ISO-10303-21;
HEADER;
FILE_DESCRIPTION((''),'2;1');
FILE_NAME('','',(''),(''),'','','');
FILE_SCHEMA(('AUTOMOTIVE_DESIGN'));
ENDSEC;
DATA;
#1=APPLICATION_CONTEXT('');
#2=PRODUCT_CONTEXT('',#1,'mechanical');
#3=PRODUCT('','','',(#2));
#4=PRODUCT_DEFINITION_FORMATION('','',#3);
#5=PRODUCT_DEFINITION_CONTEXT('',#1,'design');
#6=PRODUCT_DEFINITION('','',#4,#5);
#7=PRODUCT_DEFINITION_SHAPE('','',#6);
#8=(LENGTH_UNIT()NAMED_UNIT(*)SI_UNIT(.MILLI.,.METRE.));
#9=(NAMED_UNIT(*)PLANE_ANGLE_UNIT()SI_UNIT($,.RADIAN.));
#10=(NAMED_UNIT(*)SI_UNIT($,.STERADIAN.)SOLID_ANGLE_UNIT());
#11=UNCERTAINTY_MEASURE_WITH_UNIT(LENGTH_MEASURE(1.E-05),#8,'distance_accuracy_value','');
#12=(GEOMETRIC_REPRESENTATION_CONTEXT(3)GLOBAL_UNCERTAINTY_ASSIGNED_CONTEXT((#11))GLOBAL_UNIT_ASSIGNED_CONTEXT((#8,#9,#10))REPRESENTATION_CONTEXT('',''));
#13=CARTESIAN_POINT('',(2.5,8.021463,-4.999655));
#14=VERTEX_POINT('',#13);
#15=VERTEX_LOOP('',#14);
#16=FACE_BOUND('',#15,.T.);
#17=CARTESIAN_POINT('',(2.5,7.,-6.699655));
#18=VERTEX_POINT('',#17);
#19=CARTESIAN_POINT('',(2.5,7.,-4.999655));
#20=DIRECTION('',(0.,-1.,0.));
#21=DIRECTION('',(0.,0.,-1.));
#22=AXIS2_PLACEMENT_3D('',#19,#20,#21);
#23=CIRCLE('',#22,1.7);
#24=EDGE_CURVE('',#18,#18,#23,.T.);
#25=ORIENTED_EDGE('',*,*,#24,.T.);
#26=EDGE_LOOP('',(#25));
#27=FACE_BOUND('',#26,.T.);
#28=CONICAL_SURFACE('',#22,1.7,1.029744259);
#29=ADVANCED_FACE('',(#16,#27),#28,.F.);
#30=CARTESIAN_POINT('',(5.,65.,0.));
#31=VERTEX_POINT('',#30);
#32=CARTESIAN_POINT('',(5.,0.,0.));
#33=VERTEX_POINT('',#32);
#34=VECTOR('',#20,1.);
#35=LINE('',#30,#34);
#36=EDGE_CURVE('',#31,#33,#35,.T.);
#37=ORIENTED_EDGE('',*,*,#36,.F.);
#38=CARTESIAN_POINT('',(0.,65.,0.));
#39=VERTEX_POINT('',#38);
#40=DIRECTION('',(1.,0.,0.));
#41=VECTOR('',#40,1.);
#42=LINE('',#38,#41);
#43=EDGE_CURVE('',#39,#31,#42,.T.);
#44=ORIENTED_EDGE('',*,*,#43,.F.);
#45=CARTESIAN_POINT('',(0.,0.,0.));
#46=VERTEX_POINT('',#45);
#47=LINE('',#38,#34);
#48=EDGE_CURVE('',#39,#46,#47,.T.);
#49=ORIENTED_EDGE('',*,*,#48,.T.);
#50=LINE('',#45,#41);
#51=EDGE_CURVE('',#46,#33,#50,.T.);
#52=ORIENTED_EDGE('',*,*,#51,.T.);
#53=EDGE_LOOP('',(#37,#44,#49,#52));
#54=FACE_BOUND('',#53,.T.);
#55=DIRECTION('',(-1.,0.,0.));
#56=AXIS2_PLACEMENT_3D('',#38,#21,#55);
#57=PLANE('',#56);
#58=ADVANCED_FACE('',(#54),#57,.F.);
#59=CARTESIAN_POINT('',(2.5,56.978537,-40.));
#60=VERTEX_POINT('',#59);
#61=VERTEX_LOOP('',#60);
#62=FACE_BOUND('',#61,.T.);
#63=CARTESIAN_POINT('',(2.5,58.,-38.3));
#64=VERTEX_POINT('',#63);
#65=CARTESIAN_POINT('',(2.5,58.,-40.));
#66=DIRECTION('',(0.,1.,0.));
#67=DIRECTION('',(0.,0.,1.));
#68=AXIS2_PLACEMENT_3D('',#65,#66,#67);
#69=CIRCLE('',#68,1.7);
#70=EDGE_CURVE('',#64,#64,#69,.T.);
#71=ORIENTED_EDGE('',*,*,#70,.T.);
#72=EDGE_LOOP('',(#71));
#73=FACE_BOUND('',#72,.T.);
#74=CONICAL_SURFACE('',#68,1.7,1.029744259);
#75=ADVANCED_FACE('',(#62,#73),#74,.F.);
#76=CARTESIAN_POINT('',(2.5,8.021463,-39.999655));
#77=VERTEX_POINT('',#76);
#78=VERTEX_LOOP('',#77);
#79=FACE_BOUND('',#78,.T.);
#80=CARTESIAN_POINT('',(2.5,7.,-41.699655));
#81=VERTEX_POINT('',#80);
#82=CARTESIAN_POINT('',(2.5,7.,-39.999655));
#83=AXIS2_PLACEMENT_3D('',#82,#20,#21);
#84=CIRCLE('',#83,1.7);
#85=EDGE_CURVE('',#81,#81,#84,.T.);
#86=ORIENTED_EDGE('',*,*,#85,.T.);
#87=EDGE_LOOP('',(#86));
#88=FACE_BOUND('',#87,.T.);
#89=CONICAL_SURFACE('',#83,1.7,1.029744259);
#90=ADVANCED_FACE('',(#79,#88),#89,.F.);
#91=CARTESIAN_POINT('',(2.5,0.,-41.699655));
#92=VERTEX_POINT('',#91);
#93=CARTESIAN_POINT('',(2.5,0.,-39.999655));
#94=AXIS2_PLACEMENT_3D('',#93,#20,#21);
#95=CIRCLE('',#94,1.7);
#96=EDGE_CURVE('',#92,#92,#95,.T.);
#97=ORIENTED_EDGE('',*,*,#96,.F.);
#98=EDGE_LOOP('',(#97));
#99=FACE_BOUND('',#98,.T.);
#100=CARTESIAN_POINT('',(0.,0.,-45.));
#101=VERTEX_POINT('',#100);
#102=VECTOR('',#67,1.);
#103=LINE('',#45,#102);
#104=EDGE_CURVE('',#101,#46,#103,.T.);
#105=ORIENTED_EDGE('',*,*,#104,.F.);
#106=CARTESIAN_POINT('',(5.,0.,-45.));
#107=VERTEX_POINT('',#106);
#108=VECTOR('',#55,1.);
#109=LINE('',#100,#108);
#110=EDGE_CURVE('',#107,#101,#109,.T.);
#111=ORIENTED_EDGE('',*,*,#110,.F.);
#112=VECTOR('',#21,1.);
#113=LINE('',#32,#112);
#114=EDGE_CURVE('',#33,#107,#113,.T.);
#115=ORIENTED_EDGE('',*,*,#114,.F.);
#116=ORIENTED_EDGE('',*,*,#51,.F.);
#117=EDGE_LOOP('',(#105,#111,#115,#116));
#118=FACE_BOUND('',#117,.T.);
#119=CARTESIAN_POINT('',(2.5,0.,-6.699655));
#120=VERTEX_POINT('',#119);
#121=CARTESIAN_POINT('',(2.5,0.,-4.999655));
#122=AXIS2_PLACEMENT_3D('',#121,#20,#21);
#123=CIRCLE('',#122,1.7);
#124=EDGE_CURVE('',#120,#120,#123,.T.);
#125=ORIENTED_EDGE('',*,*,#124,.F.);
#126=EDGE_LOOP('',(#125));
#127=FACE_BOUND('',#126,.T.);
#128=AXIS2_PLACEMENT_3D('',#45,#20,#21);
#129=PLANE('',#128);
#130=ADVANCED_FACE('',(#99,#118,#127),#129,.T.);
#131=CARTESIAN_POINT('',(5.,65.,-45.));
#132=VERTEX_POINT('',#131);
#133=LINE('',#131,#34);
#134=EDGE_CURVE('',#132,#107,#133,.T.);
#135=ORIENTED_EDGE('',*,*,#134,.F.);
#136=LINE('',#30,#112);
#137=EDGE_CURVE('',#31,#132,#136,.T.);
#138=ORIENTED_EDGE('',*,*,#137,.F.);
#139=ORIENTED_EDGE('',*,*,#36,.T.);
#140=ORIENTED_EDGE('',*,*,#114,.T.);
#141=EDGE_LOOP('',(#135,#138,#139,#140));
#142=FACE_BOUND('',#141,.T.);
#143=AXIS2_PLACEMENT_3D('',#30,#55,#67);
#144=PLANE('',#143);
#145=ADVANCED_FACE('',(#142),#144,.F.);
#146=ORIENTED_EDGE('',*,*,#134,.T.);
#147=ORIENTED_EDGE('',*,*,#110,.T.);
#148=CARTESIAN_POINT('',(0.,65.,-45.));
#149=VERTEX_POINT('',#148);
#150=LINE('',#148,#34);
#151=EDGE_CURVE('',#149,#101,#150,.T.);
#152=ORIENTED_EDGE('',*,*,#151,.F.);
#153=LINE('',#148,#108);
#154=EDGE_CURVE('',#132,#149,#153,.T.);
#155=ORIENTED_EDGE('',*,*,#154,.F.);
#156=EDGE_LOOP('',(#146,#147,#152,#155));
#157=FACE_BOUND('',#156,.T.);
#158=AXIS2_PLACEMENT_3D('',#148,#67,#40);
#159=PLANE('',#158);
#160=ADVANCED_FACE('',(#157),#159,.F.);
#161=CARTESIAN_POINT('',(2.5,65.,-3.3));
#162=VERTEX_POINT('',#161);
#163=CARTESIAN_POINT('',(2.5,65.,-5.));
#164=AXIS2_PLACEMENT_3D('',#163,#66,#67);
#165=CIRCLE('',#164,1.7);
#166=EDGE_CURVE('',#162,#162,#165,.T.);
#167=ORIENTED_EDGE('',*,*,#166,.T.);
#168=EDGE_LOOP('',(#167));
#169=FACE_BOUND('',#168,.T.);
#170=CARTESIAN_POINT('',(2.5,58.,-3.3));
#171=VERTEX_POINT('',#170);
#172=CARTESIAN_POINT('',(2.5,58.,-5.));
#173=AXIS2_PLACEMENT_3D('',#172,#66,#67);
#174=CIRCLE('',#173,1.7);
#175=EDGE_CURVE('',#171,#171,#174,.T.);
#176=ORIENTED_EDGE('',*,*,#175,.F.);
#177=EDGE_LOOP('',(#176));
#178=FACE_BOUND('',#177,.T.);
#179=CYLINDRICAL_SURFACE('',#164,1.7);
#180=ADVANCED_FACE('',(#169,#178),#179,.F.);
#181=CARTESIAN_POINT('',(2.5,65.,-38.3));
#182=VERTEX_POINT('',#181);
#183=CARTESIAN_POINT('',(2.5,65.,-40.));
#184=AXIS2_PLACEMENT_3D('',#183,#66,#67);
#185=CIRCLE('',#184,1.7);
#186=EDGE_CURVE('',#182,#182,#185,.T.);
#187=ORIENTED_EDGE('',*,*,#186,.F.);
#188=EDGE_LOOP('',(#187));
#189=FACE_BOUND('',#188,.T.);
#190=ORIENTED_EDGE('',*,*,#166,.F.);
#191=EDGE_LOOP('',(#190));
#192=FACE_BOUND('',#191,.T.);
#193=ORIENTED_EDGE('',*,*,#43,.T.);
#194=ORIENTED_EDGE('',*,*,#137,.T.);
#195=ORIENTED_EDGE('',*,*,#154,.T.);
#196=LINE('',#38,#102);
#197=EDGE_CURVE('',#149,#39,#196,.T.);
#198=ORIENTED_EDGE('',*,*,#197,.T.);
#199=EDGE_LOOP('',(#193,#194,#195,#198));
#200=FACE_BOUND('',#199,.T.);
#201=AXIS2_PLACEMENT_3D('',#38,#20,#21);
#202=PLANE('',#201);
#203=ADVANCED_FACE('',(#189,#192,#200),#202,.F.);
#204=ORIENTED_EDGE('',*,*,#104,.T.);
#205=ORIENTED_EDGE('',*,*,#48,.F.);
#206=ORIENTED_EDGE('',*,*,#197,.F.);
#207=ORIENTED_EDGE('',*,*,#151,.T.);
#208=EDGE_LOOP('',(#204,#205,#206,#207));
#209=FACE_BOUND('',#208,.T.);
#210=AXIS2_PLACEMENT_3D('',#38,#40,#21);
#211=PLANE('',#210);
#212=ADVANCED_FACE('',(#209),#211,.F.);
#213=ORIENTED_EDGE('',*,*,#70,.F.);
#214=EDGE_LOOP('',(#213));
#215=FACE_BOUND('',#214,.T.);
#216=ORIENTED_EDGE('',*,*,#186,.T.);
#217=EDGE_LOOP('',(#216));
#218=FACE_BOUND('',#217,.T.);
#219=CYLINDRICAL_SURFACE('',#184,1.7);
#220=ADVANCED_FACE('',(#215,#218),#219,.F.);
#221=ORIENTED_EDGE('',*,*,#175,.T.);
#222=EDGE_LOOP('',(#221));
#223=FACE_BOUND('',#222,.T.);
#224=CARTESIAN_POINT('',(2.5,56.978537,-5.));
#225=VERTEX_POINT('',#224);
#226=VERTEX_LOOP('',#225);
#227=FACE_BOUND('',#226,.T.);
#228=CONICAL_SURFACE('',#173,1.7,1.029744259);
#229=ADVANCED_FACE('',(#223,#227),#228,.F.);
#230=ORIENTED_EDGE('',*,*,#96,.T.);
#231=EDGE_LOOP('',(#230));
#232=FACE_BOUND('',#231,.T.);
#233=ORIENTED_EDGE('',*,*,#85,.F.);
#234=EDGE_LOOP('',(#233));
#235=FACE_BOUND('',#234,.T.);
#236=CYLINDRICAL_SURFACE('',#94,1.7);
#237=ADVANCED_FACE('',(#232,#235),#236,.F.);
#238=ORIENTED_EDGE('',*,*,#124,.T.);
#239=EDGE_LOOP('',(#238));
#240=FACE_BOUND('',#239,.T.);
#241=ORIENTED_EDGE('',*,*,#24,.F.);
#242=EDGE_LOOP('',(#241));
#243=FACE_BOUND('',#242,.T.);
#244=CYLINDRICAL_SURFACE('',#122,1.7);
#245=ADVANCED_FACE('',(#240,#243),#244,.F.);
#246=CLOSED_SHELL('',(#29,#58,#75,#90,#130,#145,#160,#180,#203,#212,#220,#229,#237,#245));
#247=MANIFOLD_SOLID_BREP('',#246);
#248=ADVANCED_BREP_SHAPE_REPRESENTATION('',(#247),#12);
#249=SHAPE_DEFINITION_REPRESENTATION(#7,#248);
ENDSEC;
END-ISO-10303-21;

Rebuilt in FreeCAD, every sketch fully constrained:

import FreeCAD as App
import Part
import Sketcher
from FreeCAD import Vector
Q = App.Units.Quantity


def add_polygon(sketch, points):
    """Adds a closed chain of lines whose ends are joined by coincident constraints."""
    first, n = sketch.GeometryCount, len(points)
    for a, b in zip(points, points[1:] + points[:1]):
        sketch.addGeometry(Part.LineSegment(App.Vector(*a, 0), App.Vector(*b, 0)), False)
    for i in range(n):
        sketch.addConstraint(Sketcher.Constraint("Coincident", first + i, 2, first + (i + 1) % n, 1))

doc = App.newDocument("Part")
body = doc.addObject("PartDesign::Body", "Body")

# Sketch on XZ plane
sketch1 = doc.addObject("Sketcher::SketchObject", "Sketch")
body.addObject(sketch1)
sketch1.AttachmentSupport = (doc.XZ_Plane, [""])
sketch1.MapMode = "FlatFace"
add_polygon(sketch1, [(0, -45), (0, 0), (5, 0), (5, -45)])  # lines 0-3
sketch1.addConstraint([
    Sketcher.Constraint("Vertical", 0),
    Sketcher.Constraint("Horizontal", 1),
    Sketcher.Constraint("Vertical", 2),
    Sketcher.Constraint("Horizontal", 3),
    Sketcher.Constraint("Coincident", 0, 2, -1, 1),
    Sketcher.Constraint("DistanceX", 1, 1, 1, 2, Q("5 mm")),
    Sketcher.Constraint("DistanceY", 0, 1, 0, 2, Q("45 mm")),
])
pad1 = doc.addObject("PartDesign::Pad", "Pad")
body.addObject(pad1)
pad1.Profile = sketch1
pad1.Length = 65
pad1.Reversed = True

# Sketch on XZ plane
sketch2 = doc.addObject("Sketcher::SketchObject", "Sketch001")
body.addObject(sketch2)
sketch2.AttachmentSupport = (doc.XZ_Plane, [""])
sketch2.MapMode = "FlatFace"
sketch2.AttachmentOffset = App.Placement(Vector(0, 0, -65), App.Rotation())
sketch2.addGeometry([
    Part.Circle(Vector(2.5, -40, 0), Vector(0, 0, 1), 1.7),
    Part.Circle(Vector(2.5, -5, 0), Vector(0, 0, 1), 1.7),
], False)
sketch2.addConstraint([
    Sketcher.Constraint("Equal", 0, 1),
    Sketcher.Constraint("Vertical", 0, 3, 1, 3),
    Sketcher.Constraint("Diameter", 0, Q("3.4 mm")),
    Sketcher.Constraint("DistanceY", 0, 3, -1, 1, Q("40 mm")),
    Sketcher.Constraint("DistanceY", 1, 3, -1, 1, Q("5 mm")),
    Sketcher.Constraint("DistanceX", -1, 1, 0, 3, Q("2.5 mm")),
])
doc.recompute()
hole = doc.addObject("PartDesign::Hole", "Hole")
body.addObject(hole)
hole.Profile = sketch2
hole.ThreadType = "None"
hole.Diameter = 3.4
hole.DepthType = "Dimension"
hole.Depth = 7
hole.DrillPoint = "Angled"
hole.DrillPointAngle = 118
hole.Reversed = True

# Sketch on XZ plane
sketch3 = doc.addObject("Sketcher::SketchObject", "Sketch002")
body.addObject(sketch3)
sketch3.AttachmentSupport = (doc.XZ_Plane, [""])
sketch3.MapMode = "FlatFace"
sketch3.addGeometry([
    Part.Circle(Vector(2.5, -40, 0), Vector(0, 0, 1), 1.7),
    Part.Circle(Vector(2.5, -5, 0), Vector(0, 0, 1), 1.7),
], False)
sketch3.addConstraint([
    Sketcher.Constraint("Equal", 0, 1),
    Sketcher.Constraint("Vertical", 0, 3, 1, 3),
    Sketcher.Constraint("Diameter", 0, Q("3.4 mm")),
    Sketcher.Constraint("DistanceY", 0, 3, 1, 3, Q("35 mm")),
    Sketcher.Constraint("DistanceX", -1, 1, 0, 3, Q("2.5 mm")),
    Sketcher.Constraint("DistanceY", 0, 3, -1, 1, Q("39.999655 mm")),
])
doc.recompute()
hole2 = doc.addObject("PartDesign::Hole", "Hole001")
body.addObject(hole2)
hole2.Profile = sketch3
hole2.ThreadType = "None"
hole2.Diameter = 3.4
hole2.DepthType = "Dimension"
hole2.Depth = 7
hole2.DrillPoint = "Angled"
hole2.DrillPointAngle = 118

doc.recompute()
